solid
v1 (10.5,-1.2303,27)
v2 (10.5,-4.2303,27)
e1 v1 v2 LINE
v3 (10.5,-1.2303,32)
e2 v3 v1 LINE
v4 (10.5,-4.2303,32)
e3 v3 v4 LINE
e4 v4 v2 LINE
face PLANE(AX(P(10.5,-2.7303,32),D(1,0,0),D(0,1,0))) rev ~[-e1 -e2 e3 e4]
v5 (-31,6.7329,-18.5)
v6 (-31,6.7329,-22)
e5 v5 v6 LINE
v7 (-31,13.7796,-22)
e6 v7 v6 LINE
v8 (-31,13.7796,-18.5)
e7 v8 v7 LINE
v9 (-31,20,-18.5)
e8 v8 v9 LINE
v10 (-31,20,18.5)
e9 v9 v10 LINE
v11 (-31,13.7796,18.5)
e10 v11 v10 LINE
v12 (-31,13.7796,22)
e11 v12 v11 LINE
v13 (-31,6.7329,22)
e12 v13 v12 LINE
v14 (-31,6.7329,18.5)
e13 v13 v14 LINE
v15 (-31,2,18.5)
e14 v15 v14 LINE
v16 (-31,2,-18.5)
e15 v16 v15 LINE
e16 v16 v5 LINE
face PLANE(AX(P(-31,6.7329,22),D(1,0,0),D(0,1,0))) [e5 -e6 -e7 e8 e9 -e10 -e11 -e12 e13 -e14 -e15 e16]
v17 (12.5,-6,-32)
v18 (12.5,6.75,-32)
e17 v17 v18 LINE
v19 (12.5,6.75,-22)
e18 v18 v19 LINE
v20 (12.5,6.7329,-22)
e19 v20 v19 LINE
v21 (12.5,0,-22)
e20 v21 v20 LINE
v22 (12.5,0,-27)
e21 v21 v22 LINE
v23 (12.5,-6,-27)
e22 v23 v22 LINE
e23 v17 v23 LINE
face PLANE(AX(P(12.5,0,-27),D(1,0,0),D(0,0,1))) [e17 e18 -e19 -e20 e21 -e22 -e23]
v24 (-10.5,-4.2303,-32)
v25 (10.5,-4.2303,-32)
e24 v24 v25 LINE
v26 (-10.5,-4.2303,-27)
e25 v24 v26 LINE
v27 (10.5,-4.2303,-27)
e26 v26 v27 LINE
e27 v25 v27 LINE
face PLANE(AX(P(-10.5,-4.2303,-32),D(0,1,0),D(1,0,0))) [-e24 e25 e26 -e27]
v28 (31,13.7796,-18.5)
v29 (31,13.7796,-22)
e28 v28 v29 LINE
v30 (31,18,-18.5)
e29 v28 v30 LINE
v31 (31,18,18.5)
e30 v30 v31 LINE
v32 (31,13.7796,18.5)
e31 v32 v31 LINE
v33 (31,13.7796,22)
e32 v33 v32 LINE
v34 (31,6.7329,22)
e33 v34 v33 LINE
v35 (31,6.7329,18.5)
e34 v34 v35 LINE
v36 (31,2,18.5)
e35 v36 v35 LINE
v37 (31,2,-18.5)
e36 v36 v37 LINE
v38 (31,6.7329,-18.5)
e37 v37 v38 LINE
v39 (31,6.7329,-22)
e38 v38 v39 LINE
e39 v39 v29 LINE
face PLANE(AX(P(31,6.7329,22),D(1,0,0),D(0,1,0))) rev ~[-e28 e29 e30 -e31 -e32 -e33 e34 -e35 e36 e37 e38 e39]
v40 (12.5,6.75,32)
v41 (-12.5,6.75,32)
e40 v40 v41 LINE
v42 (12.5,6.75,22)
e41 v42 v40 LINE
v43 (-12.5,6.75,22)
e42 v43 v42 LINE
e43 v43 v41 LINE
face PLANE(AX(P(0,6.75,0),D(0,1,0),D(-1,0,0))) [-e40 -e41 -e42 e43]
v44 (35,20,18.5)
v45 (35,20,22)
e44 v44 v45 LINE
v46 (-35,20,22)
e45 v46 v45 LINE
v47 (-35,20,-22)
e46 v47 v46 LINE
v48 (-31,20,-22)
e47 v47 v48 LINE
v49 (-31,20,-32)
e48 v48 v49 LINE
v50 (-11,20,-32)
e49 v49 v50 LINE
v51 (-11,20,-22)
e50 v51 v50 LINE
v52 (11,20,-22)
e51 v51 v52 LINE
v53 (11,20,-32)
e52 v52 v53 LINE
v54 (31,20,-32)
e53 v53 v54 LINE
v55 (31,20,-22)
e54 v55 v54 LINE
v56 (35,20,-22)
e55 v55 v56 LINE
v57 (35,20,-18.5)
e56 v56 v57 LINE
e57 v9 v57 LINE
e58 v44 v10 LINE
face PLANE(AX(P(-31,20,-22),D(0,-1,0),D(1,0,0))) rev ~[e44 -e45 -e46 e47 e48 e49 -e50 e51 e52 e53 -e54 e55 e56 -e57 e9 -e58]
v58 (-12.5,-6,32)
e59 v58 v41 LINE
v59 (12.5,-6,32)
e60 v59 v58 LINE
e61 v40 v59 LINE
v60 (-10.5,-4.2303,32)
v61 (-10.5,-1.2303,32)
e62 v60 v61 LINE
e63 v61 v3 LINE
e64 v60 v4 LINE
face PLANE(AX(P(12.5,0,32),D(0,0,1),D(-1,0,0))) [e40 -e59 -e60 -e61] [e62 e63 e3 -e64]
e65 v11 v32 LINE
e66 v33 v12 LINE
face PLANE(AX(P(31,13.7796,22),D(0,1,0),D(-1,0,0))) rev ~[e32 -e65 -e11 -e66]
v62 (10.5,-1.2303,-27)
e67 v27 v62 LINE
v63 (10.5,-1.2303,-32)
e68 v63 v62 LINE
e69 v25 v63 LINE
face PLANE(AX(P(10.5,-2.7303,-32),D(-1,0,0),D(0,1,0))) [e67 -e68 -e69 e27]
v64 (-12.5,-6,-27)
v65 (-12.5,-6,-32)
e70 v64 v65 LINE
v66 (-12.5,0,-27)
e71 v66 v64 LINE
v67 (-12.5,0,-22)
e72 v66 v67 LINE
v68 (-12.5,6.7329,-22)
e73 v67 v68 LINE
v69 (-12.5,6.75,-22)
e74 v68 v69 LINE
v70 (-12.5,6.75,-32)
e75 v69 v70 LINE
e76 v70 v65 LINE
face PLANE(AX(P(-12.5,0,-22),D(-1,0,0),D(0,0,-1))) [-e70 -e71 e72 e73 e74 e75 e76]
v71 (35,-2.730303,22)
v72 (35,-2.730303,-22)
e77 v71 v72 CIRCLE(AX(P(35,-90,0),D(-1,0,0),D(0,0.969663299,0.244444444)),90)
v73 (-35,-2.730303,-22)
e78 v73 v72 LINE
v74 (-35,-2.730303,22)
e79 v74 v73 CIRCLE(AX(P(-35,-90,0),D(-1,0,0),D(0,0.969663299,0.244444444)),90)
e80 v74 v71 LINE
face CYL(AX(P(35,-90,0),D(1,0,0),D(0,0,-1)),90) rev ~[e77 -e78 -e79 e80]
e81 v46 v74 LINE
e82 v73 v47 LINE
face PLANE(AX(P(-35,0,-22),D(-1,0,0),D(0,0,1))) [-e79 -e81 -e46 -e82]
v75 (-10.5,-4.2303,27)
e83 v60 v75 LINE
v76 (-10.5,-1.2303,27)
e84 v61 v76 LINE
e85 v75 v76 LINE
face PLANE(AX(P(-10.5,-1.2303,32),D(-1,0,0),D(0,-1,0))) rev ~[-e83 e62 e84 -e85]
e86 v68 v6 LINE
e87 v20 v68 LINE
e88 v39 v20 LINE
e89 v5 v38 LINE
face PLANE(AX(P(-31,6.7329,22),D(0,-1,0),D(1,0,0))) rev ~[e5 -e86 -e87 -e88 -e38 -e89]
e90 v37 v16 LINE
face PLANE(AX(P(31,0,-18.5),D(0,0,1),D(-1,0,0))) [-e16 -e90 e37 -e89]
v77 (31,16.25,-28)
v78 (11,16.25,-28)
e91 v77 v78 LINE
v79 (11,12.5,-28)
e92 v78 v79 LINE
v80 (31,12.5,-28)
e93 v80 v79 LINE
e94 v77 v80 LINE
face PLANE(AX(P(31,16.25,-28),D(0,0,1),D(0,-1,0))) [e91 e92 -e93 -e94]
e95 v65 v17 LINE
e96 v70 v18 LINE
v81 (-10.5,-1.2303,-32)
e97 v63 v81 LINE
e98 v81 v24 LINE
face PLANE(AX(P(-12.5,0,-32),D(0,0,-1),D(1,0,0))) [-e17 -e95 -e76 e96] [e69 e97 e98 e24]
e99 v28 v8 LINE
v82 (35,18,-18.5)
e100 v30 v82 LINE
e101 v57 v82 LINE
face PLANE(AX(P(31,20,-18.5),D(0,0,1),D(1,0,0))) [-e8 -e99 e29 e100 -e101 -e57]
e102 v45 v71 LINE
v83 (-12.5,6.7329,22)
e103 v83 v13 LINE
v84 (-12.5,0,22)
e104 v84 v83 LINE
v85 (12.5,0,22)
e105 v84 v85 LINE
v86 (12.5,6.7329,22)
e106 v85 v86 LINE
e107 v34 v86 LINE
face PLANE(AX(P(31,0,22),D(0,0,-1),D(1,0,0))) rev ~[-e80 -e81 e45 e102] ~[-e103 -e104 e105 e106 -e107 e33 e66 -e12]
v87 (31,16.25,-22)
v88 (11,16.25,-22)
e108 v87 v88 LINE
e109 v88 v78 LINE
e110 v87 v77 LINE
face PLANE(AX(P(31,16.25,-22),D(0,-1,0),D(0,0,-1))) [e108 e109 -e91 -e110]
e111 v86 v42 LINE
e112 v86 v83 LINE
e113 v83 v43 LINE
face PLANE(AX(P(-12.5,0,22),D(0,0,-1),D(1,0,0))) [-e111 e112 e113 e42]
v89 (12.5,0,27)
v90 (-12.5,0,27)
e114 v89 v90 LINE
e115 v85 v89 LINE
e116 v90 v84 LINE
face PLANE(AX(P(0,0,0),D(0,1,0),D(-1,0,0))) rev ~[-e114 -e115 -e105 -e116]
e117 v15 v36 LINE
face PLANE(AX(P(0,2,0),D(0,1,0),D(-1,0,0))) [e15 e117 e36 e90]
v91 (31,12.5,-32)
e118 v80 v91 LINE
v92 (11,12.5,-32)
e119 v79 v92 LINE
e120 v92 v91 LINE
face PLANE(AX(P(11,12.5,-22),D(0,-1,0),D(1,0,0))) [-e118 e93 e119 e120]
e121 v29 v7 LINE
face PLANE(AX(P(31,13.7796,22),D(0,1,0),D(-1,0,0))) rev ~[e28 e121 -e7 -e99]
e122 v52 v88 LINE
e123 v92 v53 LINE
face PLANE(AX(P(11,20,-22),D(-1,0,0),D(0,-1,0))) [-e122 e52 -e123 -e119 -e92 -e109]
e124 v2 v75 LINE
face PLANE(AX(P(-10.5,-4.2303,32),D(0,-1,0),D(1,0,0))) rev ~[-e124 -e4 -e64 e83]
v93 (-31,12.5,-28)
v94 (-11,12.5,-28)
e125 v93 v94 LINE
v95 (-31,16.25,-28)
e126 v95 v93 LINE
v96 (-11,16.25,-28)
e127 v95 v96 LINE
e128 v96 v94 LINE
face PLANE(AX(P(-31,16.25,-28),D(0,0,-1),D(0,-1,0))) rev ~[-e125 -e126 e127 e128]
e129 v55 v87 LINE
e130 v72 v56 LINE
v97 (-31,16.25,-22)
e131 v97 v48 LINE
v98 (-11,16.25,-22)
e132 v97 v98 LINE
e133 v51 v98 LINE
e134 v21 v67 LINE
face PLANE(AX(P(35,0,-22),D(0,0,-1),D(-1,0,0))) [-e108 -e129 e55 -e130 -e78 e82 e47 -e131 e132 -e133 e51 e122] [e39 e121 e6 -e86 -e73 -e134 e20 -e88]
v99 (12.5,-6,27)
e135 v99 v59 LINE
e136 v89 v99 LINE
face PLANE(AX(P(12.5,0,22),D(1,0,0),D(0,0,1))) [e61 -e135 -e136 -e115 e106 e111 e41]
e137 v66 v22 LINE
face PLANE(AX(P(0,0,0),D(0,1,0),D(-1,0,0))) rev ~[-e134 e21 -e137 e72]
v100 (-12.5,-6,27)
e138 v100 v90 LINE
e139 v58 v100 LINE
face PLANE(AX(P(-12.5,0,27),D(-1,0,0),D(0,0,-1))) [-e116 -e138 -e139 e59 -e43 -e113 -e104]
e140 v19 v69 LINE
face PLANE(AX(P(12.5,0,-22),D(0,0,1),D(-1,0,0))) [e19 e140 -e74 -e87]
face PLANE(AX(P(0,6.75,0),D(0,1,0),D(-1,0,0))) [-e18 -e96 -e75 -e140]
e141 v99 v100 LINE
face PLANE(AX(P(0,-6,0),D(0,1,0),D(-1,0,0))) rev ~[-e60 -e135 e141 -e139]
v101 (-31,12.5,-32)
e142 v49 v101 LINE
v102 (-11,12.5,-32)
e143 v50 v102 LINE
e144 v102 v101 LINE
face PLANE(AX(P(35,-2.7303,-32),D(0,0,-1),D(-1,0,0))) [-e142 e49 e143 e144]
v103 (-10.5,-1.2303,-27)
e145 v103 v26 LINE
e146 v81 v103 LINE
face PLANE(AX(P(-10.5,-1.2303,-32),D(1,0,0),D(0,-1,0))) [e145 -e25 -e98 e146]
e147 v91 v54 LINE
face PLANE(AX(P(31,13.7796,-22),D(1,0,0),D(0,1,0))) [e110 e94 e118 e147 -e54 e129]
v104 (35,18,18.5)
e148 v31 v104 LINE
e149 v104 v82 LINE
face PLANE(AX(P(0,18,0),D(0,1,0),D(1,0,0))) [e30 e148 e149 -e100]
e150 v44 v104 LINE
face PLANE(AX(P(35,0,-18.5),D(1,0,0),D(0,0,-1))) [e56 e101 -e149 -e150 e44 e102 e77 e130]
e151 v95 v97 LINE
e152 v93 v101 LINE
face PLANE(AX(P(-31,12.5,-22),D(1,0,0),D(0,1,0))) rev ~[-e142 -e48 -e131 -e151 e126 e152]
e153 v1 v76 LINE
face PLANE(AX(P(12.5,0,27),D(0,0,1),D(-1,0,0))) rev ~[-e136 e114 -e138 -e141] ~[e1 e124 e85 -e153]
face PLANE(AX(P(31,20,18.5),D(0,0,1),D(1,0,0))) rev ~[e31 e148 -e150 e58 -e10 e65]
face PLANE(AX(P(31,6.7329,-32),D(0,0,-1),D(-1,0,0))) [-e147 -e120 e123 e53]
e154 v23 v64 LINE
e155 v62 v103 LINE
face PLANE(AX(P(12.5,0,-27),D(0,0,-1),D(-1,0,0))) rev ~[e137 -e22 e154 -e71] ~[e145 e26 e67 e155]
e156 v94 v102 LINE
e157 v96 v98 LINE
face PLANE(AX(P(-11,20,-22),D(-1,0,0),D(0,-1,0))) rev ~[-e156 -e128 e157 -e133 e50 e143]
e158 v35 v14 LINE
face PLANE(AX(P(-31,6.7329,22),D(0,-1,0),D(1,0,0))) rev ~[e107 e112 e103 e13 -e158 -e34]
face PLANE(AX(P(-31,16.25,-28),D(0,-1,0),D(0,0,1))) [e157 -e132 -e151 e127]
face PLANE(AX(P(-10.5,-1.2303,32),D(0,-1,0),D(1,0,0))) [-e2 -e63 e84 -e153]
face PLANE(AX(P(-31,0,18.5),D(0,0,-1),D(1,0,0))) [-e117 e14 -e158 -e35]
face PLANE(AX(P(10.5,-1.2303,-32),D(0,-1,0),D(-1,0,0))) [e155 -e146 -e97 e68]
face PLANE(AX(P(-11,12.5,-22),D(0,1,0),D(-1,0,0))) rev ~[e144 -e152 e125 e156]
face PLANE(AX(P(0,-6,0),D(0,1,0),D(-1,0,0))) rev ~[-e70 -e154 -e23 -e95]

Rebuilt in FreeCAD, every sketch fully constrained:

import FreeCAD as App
import Part
import Sketcher

V = App.Vector


def add_polygon(sketch, points):
    """Adds a closed chain of lines whose ends are joined by coincident constraints."""
    first, n = sketch.GeometryCount, len(points)
    for a, b in zip(points, points[1:] + points[:1]):
        sketch.addGeometry(Part.LineSegment(App.Vector(*a, 0), App.Vector(*b, 0)), False)
    for i in range(n):
        sketch.addConstraint(Sketcher.Constraint("Coincident", first + i, 2, first + (i + 1) % n, 1))

doc = App.newDocument("Part")
params = doc.addObject("Spreadsheet::Sheet", "Params")
for row, (alias, value) in enumerate([
    ("sketch1_width", "70 mm"),
    ("sketch1_height", "44 mm"),
    ("sketch1_height2", "37 mm"),
    ("sketch1_width2", "62 mm"),
    ("pad1_length", "20 mm"),
    ("sketch2_height", "37 mm"),
    ("sketch2_width", "62 mm"),
    ("pad2_length", "2 mm"),
    ("sketch3_width", "62 mm"),
    ("pocket1_length", "45 mm"),
    ("sketch4_width", "25 mm"),
    ("sketch4_height", "10 mm"),
    ("pad3_length", "2 mm"),
    ("sketch5_width", "25 mm"),
    ("sketch5_height", "10 mm"),
    ("pad4_length", "2 mm"),
    ("sketch6_width", "20 mm"),
    ("pocket2_length", "5 mm"),
    ("sketch7_width", "20 mm"),
    ("pocket3_length", "5 mm"),
    ("sketch8_width", "70 mm"),
    ("sketch8_height", "44 mm"),
    ("sketch8_height2", "37 mm"),
    ("sketch8_width2", "62 mm"),
    ("pad5_length", "10 mm"),
    ("sketch9_height", "37 mm"),
    ("sketch9_width", "62 mm"),
    ("pad6_length", "10 mm"),
    ("sketch10_diameter", "180 mm"),
    ("pocket4_length", "70 mm"),
    ("sketch11_width", "4 mm"),
    ("sketch11_height", "37 mm"),
    ("pocket5_length", "2 mm"),
    ("sketch12_width", "25 mm"),
    ("sketch12_height", "5 mm"),
    ("pad7_length", "6 mm"),
    ("sketch13_width", "25 mm"),
    ("sketch13_height", "5 mm"),
    ("pad8_length", "6 mm"),
    ("sketch14_width", "21 mm"),
    ("sketch14_height", "3 mm"),
    ("pocket6_length", "6 mm"),
    ("sketch15_width", "21 mm"),
    ("sketch15_height", "3 mm"),
    ("pocket7_length", "6 mm"),
    ("sketch16_width", "25 mm"),
    ("sketch16_height", "10 mm"),
    ("pocket8_length", "6.75 mm"),
    ("sketch17_width", "25 mm"),
    ("sketch17_height", "5 mm"),
    ("pad9_length", "6.75 mm"),
    ("sketch18_width", "25 mm"),
    ("sketch18_height", "5 mm"),
    ("pad10_length", "6.75 mm"),
    ("sketch19_width", "25 mm"),
    ("sketch19_height", "5 mm"),
    ("pocket9_length", "6.75 mm"),
    ("sketch20_width", "25 mm"),
    ("sketch20_height", "10 mm"),
    ("pad11_length", "6.75 mm"),
    ("sketch21_width", "20 mm"),
    ("sketch21_height", "7.5 mm"),
    ("pad12_length", "10 mm"),
    ("sketch22_width", "20 mm"),
    ("sketch22_height", "7.5 mm"),
    ("pad13_length", "10 mm"),
    ("sketch23_height", "6 mm"),
    ("sketch23_width", "3.75 mm"),
    ("pocket10_length", "20 mm"),
    ("sketch24_height", "6 mm"),
    ("sketch24_width", "3.75 mm"),
    ("pocket11_length", "20 mm"),
], start=1):
    params.set(f"A{row}", alias)
    params.set(f"B{row}", "=" + value)
    params.setAlias(f"B{row}", alias)

body = doc.addObject("PartDesign::Body", "Body")
body.AllowCompound = True

sketch1 = body.newObject("Sketcher::SketchObject", "Sketch")
sketch1.AttachmentSupport = (doc.getObject("XZ_Plane"), [""])
sketch1.MapMode = "FlatFace"
add_polygon(sketch1, [(35, 22), (35, -22), (-35, -22), (-35, 22)])
add_polygon(sketch1, [(-31, -18), (31, -18), (31, 18), (-31, 18)])
sketch1.addConstraint([
    Sketcher.Constraint("Vertical", 0),
    Sketcher.Constraint("Horizontal", 1),
    Sketcher.Constraint("Vertical", 2),
    Sketcher.Constraint("Horizontal", 3),
    Sketcher.Constraint("Horizontal", 4),
    Sketcher.Constraint("Vertical", 5),
    Sketcher.Constraint("Horizontal", 6),
    Sketcher.Constraint("Vertical", 7),
    Sketcher.Constraint("Symmetric", 0, 2, 2, 2, -1, 1),
    Sketcher.Constraint("Symmetric", 4, 2, 6, 2, -1, 1),
    Sketcher.Constraint("DistanceX", 1, 2, 1, 1, 70.0),
    Sketcher.Constraint("DistanceY", 0, 2, 0, 1, 44.0),
    Sketcher.Constraint("DistanceY", 5, 1, 5, 2, 37.0),
    Sketcher.Constraint("DistanceX", 4, 1, 4, 2, 62.0),
])
sketch1.setExpression("Constraints[18]", "Params.sketch1_width")
sketch1.setExpression("Constraints[19]", "Params.sketch1_height")
sketch1.setExpression("Constraints[20]", "Params.sketch1_height2")
sketch1.setExpression("Constraints[21]", "Params.sketch1_width2")
pad1 = body.newObject("PartDesign::Pad", "Pad")
pad1.Profile = sketch1
pad1.setExpression("Length", "Params.pad1_length")
pad1.Reversed = True

sketch2 = body.newObject("Sketcher::SketchObject", "Sketch001")
sketch2.AttachmentSupport = (doc.getObject("XZ_Plane"), [""])
sketch2.MapMode = "FlatFace"
add_polygon(sketch2, [(31, 18), (31, -18), (-31, -18), (-31, 18)])
sketch2.addConstraint([
    Sketcher.Constraint("Vertical", 0),
    Sketcher.Constraint("Horizontal", 1),
    Sketcher.Constraint("Vertical", 2),
    Sketcher.Constraint("Horizontal", 3),
    Sketcher.Constraint("Symmetric", 0, 2, 2, 2, -1, 1),
    Sketcher.Constraint("DistanceY", 0, 2, 0, 1, 37.0),
    Sketcher.Constraint("DistanceX", 1, 2, 1, 1, 62.0),
])
sketch2.setExpression("Constraints[9]", "Params.sketch2_height")
sketch2.setExpression("Constraints[10]", "Params.sketch2_width")
pad2 = body.newObject("PartDesign::Pad", "Pad001")
pad2.Profile = sketch2
pad2.setExpression("Length", "Params.pad2_length")
pad2.Reversed = True

sketch3 = body.newObject("Sketcher::SketchObject", "Sketch002")
sketch3.AttachmentSupport = (doc.getObject("XY_Plane"), [""])
sketch3.MapMode = "FlatFace"
sketch3.AttachmentOffset = App.Placement(V(0, 0, 22), App.Rotation())
add_polygon(sketch3, [(-31, 7), (31, 7), (31, 14), (-31, 14)])
sketch3.addConstraint([
    Sketcher.Constraint("Horizontal", 0),
    Sketcher.Constraint("Vertical", 1),
    Sketcher.Constraint("Horizontal", 2),
    Sketcher.Constraint("Vertical", 3),
    Sketcher.Constraint("DistanceX", 0, 1, 0, 2, 62.0),
    Sketcher.Constraint("DistanceX", -1, 1, 0, 2, 31.0),
    Sketcher.Constraint("DistanceY", 1, 1, 1, 2, 7.0467),
    Sketcher.Constraint("DistanceY", -1, 1, 0, 2, 6.733),
])
sketch3.setExpression("Constraints[8]", "Params.sketch3_width")
pocket1 = body.newObject("PartDesign::Pocket", "Pocket")
pocket1.Profile = sketch3
pocket1.setExpression("Length", "Params.pocket1_length")

sketch4 = body.newObject("Sketcher::SketchObject", "Sketch003")
sketch4.AttachmentSupport = (doc.getObject("XZ_Plane"), [""])
sketch4.MapMode = "FlatFace"
add_polygon(sketch4, [(-12, -22), (12, -22), (12, -32), (-12, -32)])
sketch4.addConstraint([
    Sketcher.Constraint("Horizontal", 0),
    Sketcher.Constraint("Vertical", 1),
    Sketcher.Constraint("Horizontal", 2),
    Sketcher.Constraint("Vertical", 3),
    Sketcher.Constraint("DistanceX", 0, 1, 0, 2, 25.0),
    Sketcher.Constraint("DistanceY", 1, 2, 1, 1, 10.0),
    Sketcher.Constraint("DistanceY", 0, 2, -1, 1, 22.0),
    Sketcher.Constraint("DistanceX", -1, 1, 0, 2, 12.5),
])
sketch4.setExpression("Constraints[8]", "Params.sketch4_width")
sketch4.setExpression("Constraints[9]", "Params.sketch4_height")
pad3 = body.newObject("PartDesign::Pad", "Pad002")
pad3.Profile = sketch4
pad3.setExpression("Length", "Params.pad3_length")
pad3.Reversed = True

sketch5 = body.newObject("Sketcher::SketchObject", "Sketch004")
sketch5.AttachmentSupport = (doc.getObject("XZ_Plane"), [""])
sketch5.MapMode = "FlatFace"
add_polygon(sketch5, [(12, 22), (-12, 22), (-12, 32), (12, 32)])
sketch5.addConstraint([
    Sketcher.Constraint("Horizontal", 0),
    Sketcher.Constraint("Vertical", 1),
    Sketcher.Constraint("Horizontal", 2),
    Sketcher.Constraint("Vertical", 3),
    Sketcher.Constraint("DistanceX", 0, 2, 0, 1, 25.0),
    Sketcher.Constraint("DistanceY", 1, 1, 1, 2, 10.0),
    Sketcher.Constraint("DistanceY", -1, 1, 0, 2, 22.0),
    Sketcher.Constraint("DistanceX", 0, 2, -1, 1, 12.5),
])
sketch5.setExpression("Constraints[8]", "Params.sketch5_width")
sketch5.setExpression("Constraints[9]", "Params.sketch5_height")
pad4 = body.newObject("PartDesign::Pad", "Pad003")
pad4.Profile = sketch5
pad4.setExpression("Length", "Params.pad4_length")
pad4.Reversed = True

sketch6 = body.newObject("Sketcher::SketchObject", "Sketch005")
sketch6.AttachmentSupport = (doc.getObject("XY_Plane"), [""])
sketch6.MapMode = "FlatFace"
sketch6.AttachmentOffset = App.Placement(V(0, 0, 32), App.Rotation())
add_polygon(sketch6, [(10, -1.4), (-10, -1.4), (-10, -3), (10, -3)])
sketch6.addConstraint([
    Sketcher.Constraint("Horizontal", 0),
    Sketcher.Constraint("Vertical", 1),
    Sketcher.Constraint("Horizontal", 2),
    Sketcher.Constraint("Vertical", 3),
    Sketcher.Constraint("DistanceX", 0, 2, 0, 1, 20.0),
    Sketcher.Constraint("DistanceX", 0, 2, -1, 1, 10.0),
    Sketcher.Constraint("DistanceY", 1, 2, 1, 1, 1.612),
    Sketcher.Constraint("DistanceY", 0, 2, -1, 1, 1.3793),
])
sketch6.setExpression("Constraints[8]", "Params.sketch6_width")
pocket2 = body.newObject("PartDesign::Pocket", "Pocket001")
pocket2.Profile = sketch6
pocket2.setExpression("Length", "Params.pocket2_length")

sketch7 = body.newObject("Sketcher::SketchObject", "Sketch006")
sketch7.AttachmentSupport = (doc.getObject("XY_Plane"), [""])
sketch7.MapMode = "FlatFace"
sketch7.AttachmentOffset = App.Placement(V(0, 0, -32), App.Rotation())
add_polygon(sketch7, [(-10, -1.4), (10, -1.4), (10, -3), (-10, -3)])
sketch7.addConstraint([
    Sketcher.Constraint("Horizontal", 0),
    Sketcher.Constraint("Vertical", 1),
    Sketcher.Constraint("Horizontal", 2),
    Sketcher.Constraint("Vertical", 3),
    Sketcher.Constraint("DistanceX", 0, 1, 0, 2, 20.0),
    Sketcher.Constraint("DistanceX", -1, 1, 0, 2, 10.0),
    Sketcher.Constraint("DistanceY", 1, 2, 1, 1, 1.612),
    Sketcher.Constraint("DistanceY", 0, 2, -1, 1, 1.3796),
])
sketch7.setExpression("Constraints[8]", "Params.sketch7_width")
pocket3 = body.newObject("PartDesign::Pocket", "Pocket002")
pocket3.Profile = sketch7
pocket3.setExpression("Length", "Params.pocket3_length")
pocket3.Reversed = True

sketch8 = body.newObject("Sketcher::SketchObject", "Sketch007")
sketch8.AttachmentSupport = (doc.getObject("XZ_Plane"), [""])
sketch8.MapMode = "FlatFace"
add_polygon(sketch8, [(35, 22), (35, -22), (-35, -22), (-35, 22)])
add_polygon(sketch8, [(-31, -18), (31, -18), (31, 18), (-31, 18)])
sketch8.addConstraint([
    Sketcher.Constraint("Vertical", 0),
    Sketcher.Constraint("Horizontal", 1),
    Sketcher.Constraint("Vertical", 2),
    Sketcher.Constraint("Horizontal", 3),
    Sketcher.Constraint("Horizontal", 4),
    Sketcher.Constraint("Vertical", 5),
    Sketcher.Constraint("Horizontal", 6),
    Sketcher.Constraint("Vertical", 7),
    Sketcher.Constraint("Symmetric", 0, 2, 2, 2, -1, 1),
    Sketcher.Constraint("Symmetric", 4, 2, 6, 2, -1, 1),
    Sketcher.Constraint("DistanceX", 1, 2, 1, 1, 70.0),
    Sketcher.Constraint("DistanceY", 0, 2, 0, 1, 44.0),
    Sketcher.Constraint("DistanceY", 5, 1, 5, 2, 37.0),
    Sketcher.Constraint("DistanceX", 4, 1, 4, 2, 62.0),
])
sketch8.setExpression("Constraints[18]", "Params.sketch8_width")
sketch8.setExpression("Constraints[19]", "Params.sketch8_height")
sketch8.setExpression("Constraints[20]", "Params.sketch8_height2")
sketch8.setExpression("Constraints[21]", "Params.sketch8_width2")
pad5 = body.newObject("PartDesign::Pad", "Pad004")
pad5.Profile = sketch8
pad5.setExpression("Length", "Params.pad5_length")

sketch9 = body.newObject("Sketcher::SketchObject", "Sketch008")
sketch9.AttachmentSupport = (doc.getObject("XZ_Plane"), [""])
sketch9.MapMode = "FlatFace"
add_polygon(sketch9, [(31, 18), (31, -18), (-31, -18), (-31, 18)])
sketch9.addConstraint([
    Sketcher.Constraint("Vertical", 0),
    Sketcher.Constraint("Horizontal", 1),
    Sketcher.Constraint("Vertical", 2),
    Sketcher.Constraint("Horizontal", 3),
    Sketcher.Constraint("Symmetric", 0, 2, 2, 2, -1, 1),
    Sketcher.Constraint("DistanceY", 0, 2, 0, 1, 37.0),
    Sketcher.Constraint("DistanceX", 1, 2, 1, 1, 62.0),
])
sketch9.setExpression("Constraints[9]", "Params.sketch9_height")
sketch9.setExpression("Constraints[10]", "Params.sketch9_width")
pad6 = body.newObject("PartDesign::Pad", "Pad005")
pad6.Profile = sketch9
pad6.setExpression("Length", "Params.pad6_length")

sketch10 = body.newObject("Sketcher::SketchObject", "Sketch009")
sketch10.AttachmentSupport = (doc.getObject("YZ_Plane"), [""])
sketch10.MapMode = "FlatFace"
sketch10.AttachmentOffset = App.Placement(V(0, 0, 35), App.Rotation())
sketch10.addGeometry(Part.Circle(V(-90, 0, 0), V(0, 0, 1), 90), False)
sketch10.addConstraint([
    Sketcher.Constraint("PointOnObject", 0, 3, -1),
    Sketcher.Constraint("Diameter", 0, 180.0),
    Sketcher.Constraint("DistanceX", 0, 3, -1, 1, 90.0),
])
sketch10.setExpression("Constraints[1]", "Params.sketch10_diameter")
pocket4 = body.newObject("PartDesign::Pocket", "Pocket003")
pocket4.Profile = sketch10
pocket4.setExpression("Length", "Params.pocket4_length")

sketch11 = body.newObject("Sketcher::SketchObject", "Sketch010")
sketch11.AttachmentSupport = (doc.getObject("XZ_Plane"), [""])
sketch11.MapMode = "FlatFace"
sketch11.AttachmentOffset = App.Placement(V(0, 0, -20), App.Rotation())
add_polygon(sketch11, [(35, -18.5), (31, -18.5), (31, 18.5), (35, 18.5)])
sketch11.addConstraint([
    Sketcher.Constraint("Horizontal", 0),
    Sketcher.Constraint("Vertical", 1),
    Sketcher.Constraint("Horizontal", 2),
    Sketcher.Constraint("Vertical", 3),
    Sketcher.Constraint("DistanceX", 0, 2, 0, 1, 4.0),
    Sketcher.Constraint("DistanceY", 1, 1, 1, 2, 37.0),
    Sketcher.Constraint("DistanceX", -1, 1, 0, 2, 31.0),
    Sketcher.Constraint("DistanceY", 0, 2, -1, 1, 18.5),
])
sketch11.setExpression("Constraints[8]", "Params.sketch11_width")
sketch11.setExpression("Constraints[9]", "Params.sketch11_height")
pocket5 = body.newObject("PartDesign::Pocket", "Pocket004")
pocket5.Profile = sketch11
pocket5.setExpression("Length", "Params.pocket5_length")
pocket5.Reversed = True

sketch12 = body.newObject("Sketcher::SketchObject", "Sketch011")
sketch12.AttachmentSupport = (doc.getObject("XZ_Plane"), [""])
sketch12.MapMode = "FlatFace"
add_polygon(sketch12, [(-12, -27), (12, -27), (12, -32), (-12, -32)])
sketch12.addConstraint([
    Sketcher.Constraint("Horizontal", 0),
    Sketcher.Constraint("Vertical", 1),
    Sketcher.Constraint("Horizontal", 2),
    Sketcher.Constraint("Vertical", 3),
    Sketcher.Constraint("DistanceX", 0, 1, 0, 2, 25.0),
    Sketcher.Constraint("DistanceY", 1, 2, 1, 1, 5.0),
    Sketcher.Constraint("DistanceY", 0, 2, -1, 1, 27.0),
    Sketcher.Constraint("DistanceX", -1, 1, 0, 2, 12.5),
])
sketch12.setExpression("Constraints[8]", "Params.sketch12_width")
sketch12.setExpression("Constraints[9]", "Params.sketch12_height")
pad7 = body.newObject("PartDesign::Pad", "Pad006")
pad7.Profile = sketch12
pad7.setExpression("Length", "Params.pad7_length")

sketch13 = body.newObject("Sketcher::SketchObject", "Sketch012")
sketch13.AttachmentSupport = (doc.getObject("XZ_Plane"), [""])
sketch13.MapMode = "FlatFace"
add_polygon(sketch13, [(12, 27), (-12, 27), (-12, 32), (12, 32)])
sketch13.addConstraint([
    Sketcher.Constraint("Horizontal", 0),
    Sketcher.Constraint("Vertical", 1),
    Sketcher.Constraint("Horizontal", 2),
    Sketcher.Constraint("Vertical", 3),
    Sketcher.Constraint("DistanceX", 0, 2, 0, 1, 25.0),
    Sketcher.Constraint("DistanceY", 1, 1, 1, 2, 5.0),
    Sketcher.Constraint("DistanceY", -1, 1, 0, 2, 27.0),
    Sketcher.Constraint("DistanceX", 0, 2, -1, 1, 12.5),
])
sketch13.setExpression("Constraints[8]", "Params.sketch13_width")
sketch13.setExpression("Constraints[9]", "Params.sketch13_height")
pad8 = body.newObject("PartDesign::Pad", "Pad007")
pad8.Profile = sketch13
pad8.setExpression("Length", "Params.pad8_length")

sketch14 = body.newObject("Sketcher::SketchObject", "Sketch013")
sketch14.AttachmentSupport = (doc.getObject("XY_Plane"), [""])
sketch14.MapMode = "FlatFace"
sketch14.AttachmentOffset = App.Placement(V(0, 0, -32), App.Rotation())
add_polygon(sketch14, [(-10.5, -1.2), (10.5, -1.2), (10.5, -4.2), (-10.5, -4.2)])
sketch14.addConstraint([
    Sketcher.Constraint("Horizontal", 0),
    Sketcher.Constraint("Vertical", 1),
    Sketcher.Constraint("Horizontal", 2),
    Sketcher.Constraint("Vertical", 3),
    Sketcher.Constraint("DistanceX", 0, 1, 0, 2, 21.0),
    Sketcher.Constraint("DistanceY", 1, 2, 1, 1, 3.0),
    Sketcher.Constraint("DistanceX", -1, 1, 0, 2, 10.5),
    Sketcher.Constraint("DistanceY", 0, 2, -1, 1, 1.2303),
])
sketch14.setExpression("Constraints[8]", "Params.sketch14_width")
sketch14.setExpression("Constraints[9]", "Params.sketch14_height")
pocket6 = body.newObject("PartDesign::Pocket", "Pocket005")
pocket6.Profile = sketch14
pocket6.setExpression("Length", "Params.pocket6_length")
pocket6.Reversed = True

sketch15 = body.newObject("Sketcher::SketchObject", "Sketch014")
sketch15.AttachmentSupport = (doc.getObject("XY_Plane"), [""])
sketch15.MapMode = "FlatFace"
sketch15.AttachmentOffset = App.Placement(V(0, 0, 32), App.Rotation())
add_polygon(sketch15, [(10.5, -1.2), (-10.5, -1.2), (-10.5, -4.2), (10.5, -4.2)])
sketch15.addConstraint([
    Sketcher.Constraint("Horizontal", 0),
    Sketcher.Constraint("Vertical", 1),
    Sketcher.Constraint("Horizontal", 2),
    Sketcher.Constraint("Vertical", 3),
    Sketcher.Constraint("DistanceX", 0, 2, 0, 1, 21.0),
    Sketcher.Constraint("DistanceY", 1, 2, 1, 1, 3.0),
    Sketcher.Constraint("DistanceX", 0, 2, -1, 1, 10.5),
    Sketcher.Constraint("DistanceY", 0, 2, -1, 1, 1.2303),
])
sketch15.setExpression("Constraints[8]", "Params.sketch15_width")
sketch15.setExpression("Constraints[9]", "Params.sketch15_height")
pocket7 = body.newObject("PartDesign::Pocket", "Pocket006")
pocket7.Profile = sketch15
pocket7.setExpression("Length", "Params.pocket7_length")

sketch16 = body.newObject("Sketcher::SketchObject", "Sketch015")
sketch16.AttachmentSupport = (doc.getObject("XZ_Plane"), [""])
sketch16.MapMode = "FlatFace"
add_polygon(sketch16, [(12, 22), (-12, 22), (-12, 32), (12, 32)])
sketch16.addConstraint([
    Sketcher.Constraint("Horizontal", 0),
    Sketcher.Constraint("Vertical", 1),
    Sketcher.Constraint("Horizontal", 2),
    Sketcher.Constraint("Vertical", 3),
    Sketcher.Constraint("DistanceX", 0, 2, 0, 1, 25.0),
    Sketcher.Constraint("DistanceY", 1, 1, 1, 2, 10.0),
    Sketcher.Constraint("DistanceY", -1, 1, 0, 2, 22.0),
    Sketcher.Constraint("DistanceX", 0, 2, -1, 1, 12.5),
])
sketch16.setExpression("Constraints[8]", "Params.sketch16_width")
sketch16.setExpression("Constraints[9]", "Params.sketch16_height")
pocket8 = body.newObject("PartDesign::Pocket", "Pocket007")
pocket8.Profile = sketch16
pocket8.setExpression("Length", "Params.pocket8_length")

sketch17 = body.newObject("Sketcher::SketchObject", "Sketch016")
sketch17.AttachmentSupport = (doc.getObject("XZ_Plane"), [""])
sketch17.MapMode = "FlatFace"
add_polygon(sketch17, [(12, 27), (-12, 27), (-12, 32), (12, 32)])
sketch17.addConstraint([
    Sketcher.Constraint("Horizontal", 0),
    Sketcher.Constraint("Vertical", 1),
    Sketcher.Constraint("Horizontal", 2),
    Sketcher.Constraint("Vertical", 3),
    Sketcher.Constraint("DistanceX", 0, 2, 0, 1, 25.0),
    Sketcher.Constraint("DistanceY", 1, 1, 1, 2, 5.0),
    Sketcher.Constraint("DistanceY", -1, 1, 0, 2, 27.0),
    Sketcher.Constraint("DistanceX", 0, 2, -1, 1, 12.5),
])
sketch17.setExpression("Constraints[8]", "Params.sketch17_width")
sketch17.setExpression("Constraints[9]", "Params.sketch17_height")
pad9 = body.newObject("PartDesign::Pad", "Pad008")
pad9.Profile = sketch17
pad9.setExpression("Length", "Params.pad9_length")
pad9.Reversed = True

sketch18 = body.newObject("Sketcher::SketchObject", "Sketch017")
sketch18.AttachmentSupport = (doc.getObject("XZ_Plane"), [""])
sketch18.MapMode = "FlatFace"
add_polygon(sketch18, [(12, 22), (-12, 22), (-12, 27), (12, 27)])
sketch18.addConstraint([
    Sketcher.Constraint("Horizontal", 0),
    Sketcher.Constraint("Vertical", 1),
    Sketcher.Constraint("Horizontal", 2),
    Sketcher.Constraint("Vertical", 3),
    Sketcher.Constraint("DistanceX", 0, 2, 0, 1, 25.0),
    Sketcher.Constraint("DistanceY", 1, 1, 1, 2, 5.0),
    Sketcher.Constraint("DistanceY", -1, 1, 0, 2, 22.0),
    Sketcher.Constraint("DistanceX", 0, 2, -1, 1, 12.5),
])
sketch18.setExpression("Constraints[8]", "Params.sketch18_width")
sketch18.setExpression("Constraints[9]", "Params.sketch18_height")
pad10 = body.newObject("PartDesign::Pad", "Pad009")
pad10.Profile = sketch18
pad10.setExpression("Length", "Params.pad10_length")
pad10.Reversed = True

sketch19 = body.newObject("Sketcher::SketchObject", "Sketch018")
sketch19.AttachmentSupport = (doc.getObject("XZ_Plane"), [""])
sketch19.MapMode = "FlatFace"
add_polygon(sketch19, [(-12, -22), (12, -22), (12, -27), (-12, -27)])
sketch19.addConstraint([
    Sketcher.Constraint("Horizontal", 0),
    Sketcher.Constraint("Vertical", 1),
    Sketcher.Constraint("Horizontal", 2),
    Sketcher.Constraint("Vertical", 3),
    Sketcher.Constraint("DistanceX", 0, 1, 0, 2, 25.0),
    Sketcher.Constraint("DistanceY", 1, 2, 1, 1, 5.0),
    Sketcher.Constraint("DistanceY", 0, 2, -1, 1, 22.0),
    Sketcher.Constraint("DistanceX", -1, 1, 0, 2, 12.5),
])
sketch19.setExpression("Constraints[8]", "Params.sketch19_width")
sketch19.setExpression("Constraints[9]", "Params.sketch19_height")
pocket9 = body.newObject("PartDesign::Pocket", "Pocket008")
pocket9.Profile = sketch19
pocket9.setExpression("Length", "Params.pocket9_length")

sketch20 = body.newObject("Sketcher::SketchObject", "Sketch019")
sketch20.AttachmentSupport = (doc.getObject("XZ_Plane"), [""])
sketch20.MapMode = "FlatFace"
add_polygon(sketch20, [(-12, -22), (12, -22), (12, -32), (-12, -32)])
sketch20.addConstraint([
    Sketcher.Constraint("Horizontal", 0),
    Sketcher.Constraint("Vertical", 1),
    Sketcher.Constraint("Horizontal", 2),
    Sketcher.Constraint("Vertical", 3),
    Sketcher.Constraint("DistanceX", 0, 1, 0, 2, 25.0),
    Sketcher.Constraint("DistanceY", 1, 2, 1, 1, 10.0),
    Sketcher.Constraint("DistanceY", 0, 2, -1, 1, 22.0),
    Sketcher.Constraint("DistanceX", -1, 1, 0, 2, 12.5),
])
sketch20.setExpression("Constraints[8]", "Params.sketch20_width")
sketch20.setExpression("Constraints[9]", "Params.sketch20_height")
pad11 = body.newObject("PartDesign::Pad", "Pad010")
pad11.Profile = sketch20
pad11.setExpression("Length", "Params.pad11_length")
pad11.Reversed = True

sketch21 = body.newObject("Sketcher::SketchObject", "Sketch020")
sketch21.AttachmentSupport = (doc.getObject("XY_Plane"), [""])
sketch21.MapMode = "FlatFace"
sketch21.AttachmentOffset = App.Placement(V(0, 0, -22), App.Rotation())
add_polygon(sketch21, [(31, 20), (31, 12), (11, 12), (11, 20)])
sketch21.addConstraint([
    Sketcher.Constraint("Vertical", 0),
    Sketcher.Constraint("Horizontal", 1),
    Sketcher.Constraint("Vertical", 2),
    Sketcher.Constraint("Horizontal", 3),
    Sketcher.Constraint("DistanceX", 1, 2, 1, 1, 20.0),
    Sketcher.Constraint("DistanceY", 0, 2, 0, 1, 7.5),
    Sketcher.Constraint("DistanceY", -1, 1, 2, 2, 20.0),
    Sketcher.Constraint("DistanceX", -1, 1, 0, 2, 31.0),
])
sketch21.setExpression("Constraints[8]", "Params.sketch21_width")
sketch21.setExpression("Constraints[9]", "Params.sketch21_height")
pad12 = body.newObject("PartDesign::Pad", "Pad011")
pad12.Profile = sketch21
pad12.setExpression("Length", "Params.pad12_length")
pad12.Reversed = True

sketch22 = body.newObject("Sketcher::SketchObject", "Sketch021")
sketch22.AttachmentSupport = (doc.getObject("XY_Plane"), [""])
sketch22.MapMode = "FlatFace"
sketch22.AttachmentOffset = App.Placement(V(0, 0, -22), App.Rotation())
add_polygon(sketch22, [(-11, 12), (-31, 12), (-31, 20), (-11, 20)])
sketch22.addConstraint([
    Sketcher.Constraint("Horizontal", 0),
    Sketcher.Constraint("Vertical", 1),
    Sketcher.Constraint("Horizontal", 2),
    Sketcher.Constraint("Vertical", 3),
    Sketcher.Constraint("DistanceX", 0, 2, 0, 1, 20.0),
    Sketcher.Constraint("DistanceY", 1, 1, 1, 2, 7.5),
    Sketcher.Constraint("DistanceY", -1, 1, 1, 2, 20.0),
    Sketcher.Constraint("DistanceX", 0, 2, -1, 1, 31.0),
])
sketch22.setExpression("Constraints[8]", "Params.sketch22_width")
sketch22.setExpression("Constraints[9]", "Params.sketch22_height")
pad13 = body.newObject("PartDesign::Pad", "Pad012")
pad13.Profile = sketch22
pad13.setExpression("Length", "Params.pad13_length")
pad13.Reversed = True

sketch23 = body.newObject("Sketcher::SketchObject", "Sketch022")
sketch23.AttachmentSupport = (doc.getObject("YZ_Plane"), [""])
sketch23.MapMode = "FlatFace"
sketch23.AttachmentOffset = App.Placement(V(0, 0, -31), App.Rotation())
add_polygon(sketch23, [(16.2, -22), (16.2, -28), (12.5, -28), (12.5, -22)])
sketch23.addConstraint([
    Sketcher.Constraint("Vertical", 0),
    Sketcher.Constraint("Horizontal", 1),
    Sketcher.Constraint("Vertical", 2),
    Sketcher.Constraint("Horizontal", 3),
    Sketcher.Constraint("DistanceY", 0, 2, 0, 1, 6.0),
    Sketcher.Constraint("DistanceY", 0, 2, -1, 1, 28.0),
    Sketcher.Constraint("DistanceX", 1, 2, 1, 1, 3.75),
    Sketcher.Constraint("DistanceX", -1, 1, 1, 2, 12.5),
])
sketch23.setExpression("Constraints[8]", "Params.sketch23_height")
sketch23.setExpression("Constraints[10]", "Params.sketch23_width")
pocket10 = body.newObject("PartDesign::Pocket", "Pocket009")
pocket10.Profile = sketch23
pocket10.setExpression("Length", "Params.pocket10_length")
pocket10.Reversed = True

sketch24 = body.newObject("Sketcher::SketchObject", "Sketch023")
sketch24.AttachmentSupport = (doc.getObject("YZ_Plane"), [""])
sketch24.MapMode = "FlatFace"
sketch24.AttachmentOffset = App.Placement(V(0, 0, 31), App.Rotation())
add_polygon(sketch24, [(16.2, -28), (16.2, -22), (12.5, -22), (12.5, -28)])
sketch24.addConstraint([
    Sketcher.Constraint("Vertical", 0),
    Sketcher.Constraint("Horizontal", 1),
    Sketcher.Constraint("Vertical", 2),
    Sketcher.Constraint("Horizontal", 3),
    Sketcher.Constraint("DistanceY", 0, 1, 0, 2, 6.0),
    Sketcher.Constraint("DistanceY", 0, 2, -1, 1, 22.0),
    Sketcher.Constraint("DistanceX", 1, 2, 1, 1, 3.75),
    Sketcher.Constraint("DistanceX", -1, 1, 1, 2, 12.5),
])
sketch24.setExpression("Constraints[8]", "Params.sketch24_height")
sketch24.setExpression("Constraints[10]", "Params.sketch24_width")
pocket11 = body.newObject("PartDesign::Pocket", "Pocket010")
pocket11.Profile = sketch24
pocket11.setExpression("Length", "Params.pocket11_length")

doc.recompute()
